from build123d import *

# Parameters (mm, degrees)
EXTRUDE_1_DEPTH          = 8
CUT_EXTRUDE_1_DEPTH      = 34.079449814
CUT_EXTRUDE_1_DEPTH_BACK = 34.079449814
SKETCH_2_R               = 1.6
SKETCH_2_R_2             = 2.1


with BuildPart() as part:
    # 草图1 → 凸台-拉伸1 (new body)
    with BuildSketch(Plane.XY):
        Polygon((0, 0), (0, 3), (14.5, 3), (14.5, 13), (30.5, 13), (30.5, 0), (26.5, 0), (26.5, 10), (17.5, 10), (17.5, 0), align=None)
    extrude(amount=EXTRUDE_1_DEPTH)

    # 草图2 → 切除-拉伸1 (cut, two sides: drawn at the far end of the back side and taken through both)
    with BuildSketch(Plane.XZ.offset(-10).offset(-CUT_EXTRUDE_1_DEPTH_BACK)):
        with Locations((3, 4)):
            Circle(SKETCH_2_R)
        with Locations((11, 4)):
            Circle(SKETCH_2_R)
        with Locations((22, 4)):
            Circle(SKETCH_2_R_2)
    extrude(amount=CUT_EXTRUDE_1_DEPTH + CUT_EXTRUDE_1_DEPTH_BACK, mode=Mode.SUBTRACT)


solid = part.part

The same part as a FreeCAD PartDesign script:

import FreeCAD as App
import Part
import Sketcher
Q = App.Units.Quantity


def add_polygon(sketch, points):
    """Adds a closed chain of lines whose ends are joined by coincident constraints."""
    first, n = sketch.GeometryCount, len(points)
    for a, b in zip(points, points[1:] + points[:1]):
        sketch.addGeometry(Part.LineSegment(App.Vector(*a, 0), App.Vector(*b, 0)), False)
    for i in range(n):
        sketch.addConstraint(Sketcher.Constraint("Coincident", first + i, 2, first + (i + 1) % n, 1))

doc = App.newDocument("Part")
params = doc.addObject("Spreadsheet::Sheet", "Params")
for row, (alias, value) in enumerate([
    ("sketch1_width", "9 mm"),
    ("sketch1_width2", "4 mm"),
    ("sketch1_width3", "16 mm"),
    ("sketch1_height", "3 mm"),
    ("sketch1_height2", "10 mm"),
    ("pad1_length", "8 mm"),
    ("sketch2_diameter", "3.2 mm"),
    ("sketch2_diameter2", "4.2 mm"),
], start=1):
    params.set(f"A{row}", alias)
    params.set(f"B{row}", "=" + value)
    params.setAlias(f"B{row}", alias)

body = doc.addObject("PartDesign::Body", "Body")

# Sketch on XY plane
sketch1 = body.newObject("Sketcher::SketchObject", "Sketch")
sketch1.AttachmentSupport = (doc.getObject("XY_Plane"), [""])
sketch1.MapMode = "FlatFace"
add_polygon(sketch1, [(0, 3), (0, 0), (17.5, 0), (17.5, 10), (26.5, 10), (26.5, 0), (30.5, 0), (30.5, 13), (14.5, 13), (14.5, 3)])  # lines 0-9
sketch1.addConstraint([
    Sketcher.Constraint("Vertical", 0),
    Sketcher.Constraint("Horizontal", 1),
    Sketcher.Constraint("Vertical", 2),
    Sketcher.Constraint("Horizontal", 3),
    Sketcher.Constraint("Vertical", 4),
    Sketcher.Constraint("Horizontal", 5),
    Sketcher.Constraint("Vertical", 6),
    Sketcher.Constraint("Horizontal", 7),
    Sketcher.Constraint("Vertical", 8),
    Sketcher.Constraint("Horizontal", 9),
    Sketcher.Constraint("Coincident", 0, 2, -1, 1),
    Sketcher.Constraint("PointOnObject", 4, 2, -1),
    Sketcher.Constraint("Equal", 4, 8),
    Sketcher.Constraint("DistanceX", 3, 1, 3, 2, Q("9 mm")),
    Sketcher.Constraint("DistanceX", 5, 1, 5, 2, Q("4 mm")),
    Sketcher.Constraint("DistanceX", 7, 2, 7, 1, Q("16 mm")),
    Sketcher.Constraint("DistanceY", 0, 2, 0, 1, Q("3 mm")),
    Sketcher.Constraint("DistanceY", 2, 1, 2, 2, Q("10 mm")),
    Sketcher.Constraint("DistanceX", 1, 1, 1, 2, Q("17.5 mm")),
])
sketch1.setExpression("Constraints[23]", "Params.sketch1_width")
sketch1.setExpression("Constraints[24]", "Params.sketch1_width2")
sketch1.setExpression("Constraints[25]", "Params.sketch1_width3")
sketch1.setExpression("Constraints[26]", "Params.sketch1_height")
sketch1.setExpression("Constraints[27]", "Params.sketch1_height2")
pad1 = body.newObject("PartDesign::Pad", "Pad")
pad1.Profile = sketch1
pad1.setExpression("Length", "Params.pad1_length")

# Sketch on XZ plane
sketch2 = body.newObject("Sketcher::SketchObject", "Sketch001")
sketch2.AttachmentSupport = (doc.getObject("XZ_Plane"), [""])
sketch2.MapMode = "FlatFace"
sketch2.AttachmentOffset = App.Placement(App.Vector(0, 0, -10), App.Rotation())
sketch2.addGeometry([
    Part.Circle(App.Vector(3, 4, 0), App.Vector(0, 0, 1), 1.6),
    Part.Circle(App.Vector(11, 4, 0), App.Vector(0, 0, 1), 1.6),
    Part.Circle(App.Vector(22, 4, 0), App.Vector(0, 0, 1), 2.1),
], False)
sketch2.addConstraint([
    Sketcher.Constraint("Equal", 0, 1),
    Sketcher.Constraint("Horizontal", 0, 3, 1, 3),
    Sketcher.Constraint("Horizontal", 1, 3, 2, 3),
    Sketcher.Constraint("Diameter", 0, Q("3.2 mm")),
    Sketcher.Constraint("Diameter", 2, Q("4.2 mm")),
    Sketcher.Constraint("DistanceX", -1, 1, 0, 3, Q("3 mm")),
    Sketcher.Constraint("DistanceY", -1, 1, 0, 3, Q("4 mm")),
    Sketcher.Constraint("DistanceX", -1, 1, 1, 3, Q("11 mm")),
    Sketcher.Constraint("DistanceX", -1, 1, 2, 3, Q("22 mm")),
])
sketch2.setExpression("Constraints[3]", "Params.sketch2_diameter")
sketch2.setExpression("Constraints[4]", "Params.sketch2_diameter2")
pocket1 = body.newObject("PartDesign::Pocket", "Pocket")
pocket1.Profile = sketch2
pocket1.Type = "ThroughAll"
pocket1.Midplane = True

doc.recompute()
